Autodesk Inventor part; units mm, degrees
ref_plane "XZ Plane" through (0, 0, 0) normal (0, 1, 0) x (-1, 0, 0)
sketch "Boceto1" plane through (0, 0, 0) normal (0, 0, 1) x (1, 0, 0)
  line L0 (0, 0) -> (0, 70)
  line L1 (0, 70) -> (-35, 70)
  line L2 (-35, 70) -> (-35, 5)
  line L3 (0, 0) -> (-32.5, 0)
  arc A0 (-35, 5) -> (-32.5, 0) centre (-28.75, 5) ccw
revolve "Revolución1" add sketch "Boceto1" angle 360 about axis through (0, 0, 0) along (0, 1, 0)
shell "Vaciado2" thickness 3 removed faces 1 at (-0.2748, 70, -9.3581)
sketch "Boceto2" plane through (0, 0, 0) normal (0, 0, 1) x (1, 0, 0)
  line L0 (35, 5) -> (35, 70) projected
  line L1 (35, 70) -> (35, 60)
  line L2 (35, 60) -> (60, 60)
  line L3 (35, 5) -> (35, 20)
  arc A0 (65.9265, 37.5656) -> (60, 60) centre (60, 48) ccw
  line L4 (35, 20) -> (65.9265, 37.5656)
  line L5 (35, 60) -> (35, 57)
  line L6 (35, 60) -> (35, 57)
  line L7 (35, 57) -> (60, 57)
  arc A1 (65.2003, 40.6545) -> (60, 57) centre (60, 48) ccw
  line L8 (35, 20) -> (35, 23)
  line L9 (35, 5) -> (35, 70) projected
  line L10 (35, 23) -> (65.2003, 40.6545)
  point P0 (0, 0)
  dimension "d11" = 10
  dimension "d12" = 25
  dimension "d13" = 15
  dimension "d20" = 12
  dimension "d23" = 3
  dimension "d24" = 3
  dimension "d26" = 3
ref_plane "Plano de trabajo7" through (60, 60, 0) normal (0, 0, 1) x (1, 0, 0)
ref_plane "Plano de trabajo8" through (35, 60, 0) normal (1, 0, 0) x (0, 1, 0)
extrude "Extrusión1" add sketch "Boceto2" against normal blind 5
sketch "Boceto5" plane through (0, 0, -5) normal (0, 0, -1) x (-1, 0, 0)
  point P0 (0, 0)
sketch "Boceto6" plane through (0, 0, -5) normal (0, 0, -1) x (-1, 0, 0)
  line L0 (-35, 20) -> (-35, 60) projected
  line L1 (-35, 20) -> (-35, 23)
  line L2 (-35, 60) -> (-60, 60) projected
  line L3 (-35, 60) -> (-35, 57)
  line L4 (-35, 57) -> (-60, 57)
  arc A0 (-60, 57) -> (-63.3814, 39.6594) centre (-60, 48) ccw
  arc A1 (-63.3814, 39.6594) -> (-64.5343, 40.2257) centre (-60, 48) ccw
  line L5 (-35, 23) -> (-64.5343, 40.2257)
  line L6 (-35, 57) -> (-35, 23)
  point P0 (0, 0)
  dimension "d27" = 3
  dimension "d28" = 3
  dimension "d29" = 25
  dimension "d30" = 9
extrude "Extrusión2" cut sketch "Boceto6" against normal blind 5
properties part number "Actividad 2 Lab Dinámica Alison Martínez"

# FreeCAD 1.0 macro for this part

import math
import FreeCAD as App
import Part
import Sketcher
Q = App.Units.Quantity


def faces_at(feature, points):
    """Names of the faces that lie closest to the given points."""
    faces = feature.Shape.Faces
    near = lambda p: min(range(len(faces)), key=lambda i: faces[i].distToShape(Part.Vertex(*p))[0])
    return sorted({f"Face{near(p) + 1}" for p in points})

doc = App.newDocument("Part")
params = doc.addObject("Spreadsheet::Sheet", "Params")
for row, (alias, value) in enumerate([
    ("sketch1_width", "35 mm"),
    ("sketch1_height", "70 mm"),
    ("sketch1_height2", "65 mm"),
    ("sketch1_radius", "6.25 mm"),
    ("revolution_angle", "360 deg"),
    ("thickness_wall", "3 mm"),
    ("sketch2_radius", "12 mm"),
    ("sketch2_width", "25 mm"),
    ("sketch2_height", "40 mm"),
    ("pad1_length", "5 mm"),
    ("sketch3_radius", "9 mm"),
    ("sketch3_width", "25 mm"),
    ("pocket1_length", "5 mm"),
], start=1):
    params.set(f"A{row}", alias)
    params.set(f"B{row}", "=" + value)
    params.setAlias(f"B{row}", alias)

body = doc.addObject("PartDesign::Body", "Body")
body.AllowCompound = True

sketch1 = body.newObject("Sketcher::SketchObject", "Sketch")
sketch1.AttachmentSupport = (doc.getObject("XY_Plane"), [""])
sketch1.MapMode = "FlatFace"
sketch1.addGeometry(Part.LineSegment(App.Vector(-32, 0, 0), App.Vector(0, 0, 0)), False)
sketch1.addGeometry(Part.LineSegment(App.Vector(0, 0, 0), App.Vector(0, 70, 0)), False)
sketch1.addGeometry(Part.LineSegment(App.Vector(0, 70, 0), App.Vector(-35, 70, 0)), False)
sketch1.addGeometry(Part.LineSegment(App.Vector(-35, 70, 0), App.Vector(-35, 5, 0)), False)
sketch1.addGeometry(Part.ArcOfCircle(Part.Circle(App.Vector(-29, 5, 0), App.Vector(0, 0, 1), 6), math.radians(180), math.radians(233)), False)
sketch1.addConstraint(Sketcher.Constraint("Coincident", 0, 2, 1, 1))
sketch1.addConstraint(Sketcher.Constraint("Coincident", 1, 2, 2, 1))
sketch1.addConstraint(Sketcher.Constraint("Coincident", 2, 2, 3, 1))
sketch1.addConstraint(Sketcher.Constraint("Tangent", 3, 2, 4, 1))
sketch1.addConstraint(Sketcher.Constraint("Coincident", 4, 2, 0, 1))
sketch1.addConstraint(Sketcher.Constraint("Horizontal", 0))
sketch1.addConstraint(Sketcher.Constraint("Vertical", 1))
sketch1.addConstraint(Sketcher.Constraint("Horizontal", 2))
sketch1.addConstraint(Sketcher.Constraint("Vertical", 3))
sketch1.addConstraint(Sketcher.Constraint("Coincident", 0, 2, -1, 1))
sketch1.addConstraint(Sketcher.Constraint("DistanceX", 2, 2, 2, 1, Q("35 mm")))
sketch1.addConstraint(Sketcher.Constraint("DistanceY", 1, 1, 1, 2, Q("70 mm")))
sketch1.addConstraint(Sketcher.Constraint("DistanceY", 3, 2, 3, 1, Q("65 mm")))
sketch1.addConstraint(Sketcher.Constraint("Radius", 4, Q("6.25 mm")))
sketch1.setExpression("Constraints[10]", "Params.sketch1_width")
sketch1.setExpression("Constraints[11]", "Params.sketch1_height")
sketch1.setExpression("Constraints[12]", "Params.sketch1_height2")
sketch1.setExpression("Constraints[13]", "Params.sketch1_radius")
revolution = body.newObject("PartDesign::Revolution", "Revolution")
revolution.Profile = sketch1
revolution.ReferenceAxis = (sketch1, ["V_Axis"])
revolution.setExpression("Angle", "Params.revolution_angle")
doc.recompute()

thickness = body.newObject("PartDesign::Thickness", "Thickness")
thickness.Base = (revolution, faces_at(revolution, [(-0.275, 70, -9.358)]))
thickness.setExpression("Value", "Params.thickness_wall")
thickness.Reversed = True
thickness.Join = "Intersection"

sketch2 = body.newObject("Sketcher::SketchObject", "Sketch001")
sketch2.AttachmentSupport = (doc.getObject("XY_Plane"), [""])
sketch2.MapMode = "FlatFace"
sketch2.addGeometry(Part.LineSegment(App.Vector(35, 20, 0), App.Vector(66, 38, 0)), False)
sketch2.addGeometry(Part.ArcOfCircle(Part.Circle(App.Vector(60, 48, 0), App.Vector(0, 0, 1), 12), math.radians(-60), math.radians(90)), False)
sketch2.addGeometry(Part.LineSegment(App.Vector(60, 60, 0), App.Vector(35, 60, 0)), False)
sketch2.addGeometry(Part.LineSegment(App.Vector(35, 60, 0), App.Vector(35, 20, 0)), False)
sketch2.addConstraint(Sketcher.Constraint("Tangent", 0, 2, 1, 1))
sketch2.addConstraint(Sketcher.Constraint("Tangent", 1, 2, 2, 1))
sketch2.addConstraint(Sketcher.Constraint("Coincident", 2, 2, 3, 1))
sketch2.addConstraint(Sketcher.Constraint("Coincident", 3, 2, 0, 1))
sketch2.addConstraint(Sketcher.Constraint("Horizontal", 2))
sketch2.addConstraint(Sketcher.Constraint("Vertical", 3))
sketch2.addConstraint(Sketcher.Constraint("Radius", 1, Q("12 mm")))
sketch2.addConstraint(Sketcher.Constraint("DistanceX", 2, 2, 2, 1, Q("25 mm")))
sketch2.addConstraint(Sketcher.Constraint("DistanceY", 3, 2, 3, 1, Q("40 mm")))
sketch2.addConstraint(Sketcher.Constraint("DistanceX", -1, 1, 1, 3, Q("60 mm")))
sketch2.addConstraint(Sketcher.Constraint("DistanceY", -1, 1, 1, 3, Q("48 mm")))
sketch2.setExpression("Constraints[6]", "Params.sketch2_radius")
sketch2.setExpression("Constraints[7]", "Params.sketch2_width")
sketch2.setExpression("Constraints[8]", "Params.sketch2_height")
pad1 = body.newObject("PartDesign::Pad", "Pad")
pad1.Profile = sketch2
pad1.setExpression("Length", "Params.pad1_length")
pad1.Reversed = True

sketch3 = body.newObject("Sketcher::SketchObject", "Sketch002")
sketch3.AttachmentSupport = (doc.getObject("XY_Plane"), [""])
sketch3.MapMode = "FlatFace"
sketch3.AttachmentOffset = App.Placement(App.Vector(0, 0, -5), App.Rotation())
sketch3.addGeometry(Part.LineSegment(App.Vector(65, 40, 0), App.Vector(35, 23, 0)), False)
sketch3.addGeometry(Part.LineSegment(App.Vector(35, 23, 0), App.Vector(35, 57, 0)), False)
sketch3.addGeometry(Part.LineSegment(App.Vector(35, 57, 0), App.Vector(60, 57, 0)), False)
sketch3.addGeometry(Part.ArcOfCircle(Part.Circle(App.Vector(60, 48, 0), App.Vector(0, 0, 1), 9), math.radians(-60), math.radians(90)), False)
sketch3.addConstraint(Sketcher.Constraint("Coincident", 0, 2, 1, 1))
sketch3.addConstraint(Sketcher.Constraint("Coincident", 1, 2, 2, 1))
sketch3.addConstraint(Sketcher.Constraint("Tangent", 2, 2, 3, 2))
sketch3.addConstraint(Sketcher.Constraint("Tangent", 3, 1, 0, 1))
sketch3.addConstraint(Sketcher.Constraint("Vertical", 1))
sketch3.addConstraint(Sketcher.Constraint("Horizontal", 2))
sketch3.addConstraint(Sketcher.Constraint("Radius", 3, Q("9 mm")))
sketch3.addConstraint(Sketcher.Constraint("DistanceX", 2, 1, 2, 2, Q("25 mm")))
sketch3.addConstraint(Sketcher.Constraint("DistanceY", 0, 2, 3, 3, Q("25 mm")))
sketch3.addConstraint(Sketcher.Constraint("DistanceX", -1, 1, 3, 3, Q("60 mm")))
sketch3.addConstraint(Sketcher.Constraint("DistanceY", -1, 1, 3, 3, Q("48 mm")))
sketch3.setExpression("Constraints[6]", "Params.sketch3_radius")
sketch3.setExpression("Constraints[7]", "Params.sketch3_width")
pocket1 = body.newObject("PartDesign::Pocket", "Pocket")
pocket1.Profile = sketch3
pocket1.setExpression("Length", "Params.pocket1_length")
pocket1.Reversed = True

doc.recompute()
